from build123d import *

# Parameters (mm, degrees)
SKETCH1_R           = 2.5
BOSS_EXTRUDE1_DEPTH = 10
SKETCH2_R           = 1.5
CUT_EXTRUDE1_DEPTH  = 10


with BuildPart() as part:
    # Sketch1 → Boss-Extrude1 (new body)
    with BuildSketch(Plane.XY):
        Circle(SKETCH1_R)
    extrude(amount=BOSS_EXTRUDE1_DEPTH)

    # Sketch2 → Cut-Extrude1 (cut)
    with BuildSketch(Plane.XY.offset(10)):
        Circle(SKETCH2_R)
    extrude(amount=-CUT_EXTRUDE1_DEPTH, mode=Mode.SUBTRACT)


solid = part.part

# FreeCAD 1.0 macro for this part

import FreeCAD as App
import Part
import Sketcher

V = App.Vector

doc = App.newDocument("Part")
body = doc.addObject("PartDesign::Body", "Body")

# Sketch on XY plane
sketch1 = body.newObject("Sketcher::SketchObject", "Sketch")
sketch1.AttachmentSupport = (doc.getObject("XY_Plane"), [""])
sketch1.MapMode = "FlatFace"
sketch1.addGeometry(Part.Circle(V(0, 0, 0), V(0, 0, 1), 2.5), False)
sketch1.addConstraint([
    Sketcher.Constraint("Coincident", 0, 3, -1, 1),
    Sketcher.Constraint("Diameter", 0, 5.0),
])
pad1 = body.newObject("PartDesign::Pad", "Pad")
pad1.Profile = sketch1
pad1.Length = 10

# Sketch on XY plane
sketch2 = body.newObject("Sketcher::SketchObject", "Sketch001")
sketch2.AttachmentSupport = (doc.getObject("XY_Plane"), [""])
sketch2.MapMode = "FlatFace"
sketch2.AttachmentOffset = App.Placement(V(0, 0, 10), App.Rotation())
sketch2.addGeometry(Part.Circle(V(0, 0, 0), V(0, 0, 1), 1.5), False)
sketch2.addConstraint([
    Sketcher.Constraint("Coincident", 0, 3, -1, 1),
    Sketcher.Constraint("Diameter", 0, 3.0),
])
pocket1 = body.newObject("PartDesign::Pocket", "Pocket")
pocket1.Profile = sketch2
pocket1.Length = 10

doc.recompute()
